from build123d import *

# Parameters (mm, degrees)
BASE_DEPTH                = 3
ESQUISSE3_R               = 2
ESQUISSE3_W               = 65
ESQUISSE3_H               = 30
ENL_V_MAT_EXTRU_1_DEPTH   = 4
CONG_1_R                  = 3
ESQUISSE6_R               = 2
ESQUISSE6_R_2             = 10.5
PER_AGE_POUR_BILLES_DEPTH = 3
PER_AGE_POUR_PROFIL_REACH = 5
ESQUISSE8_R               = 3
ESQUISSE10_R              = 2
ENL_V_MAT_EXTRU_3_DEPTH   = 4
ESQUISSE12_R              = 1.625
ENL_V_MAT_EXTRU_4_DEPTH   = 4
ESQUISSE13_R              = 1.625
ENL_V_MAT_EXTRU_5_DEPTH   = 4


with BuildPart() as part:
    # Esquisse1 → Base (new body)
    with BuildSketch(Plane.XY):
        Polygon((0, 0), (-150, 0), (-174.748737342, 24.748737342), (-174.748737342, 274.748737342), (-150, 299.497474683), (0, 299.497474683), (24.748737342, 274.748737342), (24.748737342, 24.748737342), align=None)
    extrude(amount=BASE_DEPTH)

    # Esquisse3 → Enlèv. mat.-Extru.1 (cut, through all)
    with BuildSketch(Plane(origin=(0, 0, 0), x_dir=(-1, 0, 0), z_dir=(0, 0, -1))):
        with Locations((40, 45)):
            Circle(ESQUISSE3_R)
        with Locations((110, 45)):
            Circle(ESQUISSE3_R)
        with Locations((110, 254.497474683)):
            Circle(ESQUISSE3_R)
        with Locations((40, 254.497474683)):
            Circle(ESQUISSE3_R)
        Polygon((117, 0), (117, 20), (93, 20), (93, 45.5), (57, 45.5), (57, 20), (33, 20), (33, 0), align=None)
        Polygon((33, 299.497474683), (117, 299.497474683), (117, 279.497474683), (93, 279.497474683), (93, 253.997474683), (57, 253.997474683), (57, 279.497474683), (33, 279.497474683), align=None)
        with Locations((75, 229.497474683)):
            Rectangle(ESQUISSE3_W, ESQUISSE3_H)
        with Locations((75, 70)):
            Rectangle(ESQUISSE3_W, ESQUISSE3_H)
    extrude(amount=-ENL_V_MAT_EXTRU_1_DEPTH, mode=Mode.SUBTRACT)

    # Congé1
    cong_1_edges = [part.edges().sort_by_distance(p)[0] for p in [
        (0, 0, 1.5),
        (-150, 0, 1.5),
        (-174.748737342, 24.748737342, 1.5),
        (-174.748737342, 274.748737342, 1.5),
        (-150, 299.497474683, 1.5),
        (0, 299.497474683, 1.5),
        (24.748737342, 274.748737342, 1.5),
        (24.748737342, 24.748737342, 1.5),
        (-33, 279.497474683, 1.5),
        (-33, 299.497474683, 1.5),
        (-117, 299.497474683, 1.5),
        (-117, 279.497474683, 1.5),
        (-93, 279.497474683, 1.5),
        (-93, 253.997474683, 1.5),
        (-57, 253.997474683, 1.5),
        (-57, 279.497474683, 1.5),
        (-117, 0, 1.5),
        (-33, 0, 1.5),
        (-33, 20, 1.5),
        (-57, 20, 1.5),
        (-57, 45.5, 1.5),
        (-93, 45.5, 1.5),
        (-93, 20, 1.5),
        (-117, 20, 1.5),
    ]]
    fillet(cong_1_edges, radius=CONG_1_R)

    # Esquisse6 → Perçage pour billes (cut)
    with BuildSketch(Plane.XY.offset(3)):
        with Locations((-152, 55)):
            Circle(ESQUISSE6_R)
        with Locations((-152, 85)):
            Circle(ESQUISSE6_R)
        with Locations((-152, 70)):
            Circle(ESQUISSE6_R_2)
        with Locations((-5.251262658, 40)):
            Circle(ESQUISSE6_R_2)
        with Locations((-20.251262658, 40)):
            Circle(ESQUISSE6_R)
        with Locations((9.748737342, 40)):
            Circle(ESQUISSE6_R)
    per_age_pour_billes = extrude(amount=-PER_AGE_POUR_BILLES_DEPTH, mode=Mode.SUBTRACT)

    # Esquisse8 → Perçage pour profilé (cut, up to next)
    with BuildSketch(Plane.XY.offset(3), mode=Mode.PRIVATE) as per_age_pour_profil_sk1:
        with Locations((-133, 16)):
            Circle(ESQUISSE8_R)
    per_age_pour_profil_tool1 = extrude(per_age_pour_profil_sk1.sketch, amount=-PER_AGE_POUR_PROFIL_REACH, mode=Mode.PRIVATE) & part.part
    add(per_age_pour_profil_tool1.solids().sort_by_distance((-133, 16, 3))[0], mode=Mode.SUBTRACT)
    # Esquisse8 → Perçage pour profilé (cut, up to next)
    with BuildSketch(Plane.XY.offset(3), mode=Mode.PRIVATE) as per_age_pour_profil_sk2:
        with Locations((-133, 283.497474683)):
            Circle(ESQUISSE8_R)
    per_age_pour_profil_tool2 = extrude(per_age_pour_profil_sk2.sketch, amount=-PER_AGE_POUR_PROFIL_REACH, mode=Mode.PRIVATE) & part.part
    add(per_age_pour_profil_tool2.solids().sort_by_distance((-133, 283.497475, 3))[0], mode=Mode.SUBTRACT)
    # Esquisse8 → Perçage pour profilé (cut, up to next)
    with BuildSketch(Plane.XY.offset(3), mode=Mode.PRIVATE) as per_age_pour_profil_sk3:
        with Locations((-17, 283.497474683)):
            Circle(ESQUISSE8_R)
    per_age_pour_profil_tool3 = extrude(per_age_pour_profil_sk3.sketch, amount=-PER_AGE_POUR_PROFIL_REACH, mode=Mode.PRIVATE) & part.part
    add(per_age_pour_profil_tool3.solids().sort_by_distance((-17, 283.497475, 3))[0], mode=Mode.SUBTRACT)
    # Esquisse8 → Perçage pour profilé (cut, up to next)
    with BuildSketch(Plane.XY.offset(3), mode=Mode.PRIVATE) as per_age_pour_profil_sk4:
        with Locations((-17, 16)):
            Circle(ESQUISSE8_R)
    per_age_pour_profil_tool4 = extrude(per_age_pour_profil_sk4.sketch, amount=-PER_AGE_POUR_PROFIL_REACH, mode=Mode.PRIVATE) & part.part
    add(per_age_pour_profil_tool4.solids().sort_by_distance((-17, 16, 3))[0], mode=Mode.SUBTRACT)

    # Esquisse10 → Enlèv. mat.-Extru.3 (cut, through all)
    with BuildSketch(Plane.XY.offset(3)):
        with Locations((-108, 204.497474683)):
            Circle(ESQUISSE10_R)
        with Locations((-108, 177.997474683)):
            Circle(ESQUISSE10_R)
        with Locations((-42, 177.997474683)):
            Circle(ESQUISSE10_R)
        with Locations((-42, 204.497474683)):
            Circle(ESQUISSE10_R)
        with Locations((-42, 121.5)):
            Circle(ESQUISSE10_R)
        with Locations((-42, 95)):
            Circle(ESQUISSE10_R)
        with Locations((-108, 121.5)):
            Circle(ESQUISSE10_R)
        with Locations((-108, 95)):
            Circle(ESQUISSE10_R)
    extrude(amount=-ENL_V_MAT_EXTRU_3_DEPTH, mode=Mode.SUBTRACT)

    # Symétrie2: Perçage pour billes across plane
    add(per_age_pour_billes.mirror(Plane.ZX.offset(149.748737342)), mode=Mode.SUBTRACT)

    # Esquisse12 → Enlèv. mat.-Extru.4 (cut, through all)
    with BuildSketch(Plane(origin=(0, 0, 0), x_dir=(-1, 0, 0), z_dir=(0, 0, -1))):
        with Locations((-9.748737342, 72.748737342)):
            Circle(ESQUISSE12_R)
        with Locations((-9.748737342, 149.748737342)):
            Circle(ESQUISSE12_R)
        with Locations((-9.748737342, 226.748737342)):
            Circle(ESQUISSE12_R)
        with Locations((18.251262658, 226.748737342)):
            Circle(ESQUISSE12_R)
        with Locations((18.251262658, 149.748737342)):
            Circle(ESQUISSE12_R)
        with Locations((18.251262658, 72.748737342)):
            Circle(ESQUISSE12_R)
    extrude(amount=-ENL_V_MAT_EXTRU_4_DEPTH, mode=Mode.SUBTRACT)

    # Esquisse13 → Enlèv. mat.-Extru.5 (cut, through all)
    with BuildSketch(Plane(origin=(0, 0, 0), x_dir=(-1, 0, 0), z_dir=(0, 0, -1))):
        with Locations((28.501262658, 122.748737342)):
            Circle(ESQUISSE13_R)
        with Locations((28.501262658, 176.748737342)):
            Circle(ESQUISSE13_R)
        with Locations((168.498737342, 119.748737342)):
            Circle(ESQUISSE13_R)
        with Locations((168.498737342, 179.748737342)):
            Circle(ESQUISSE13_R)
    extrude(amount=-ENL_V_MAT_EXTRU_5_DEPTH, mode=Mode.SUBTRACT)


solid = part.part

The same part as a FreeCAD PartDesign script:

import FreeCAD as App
import Part
import Sketcher
from FreeCAD import Vector
Q = App.Units.Quantity


def edges_at(feature, points):
    """Names of the edges that pass closest to the given points."""
    edges = feature.Shape.Edges
    near = lambda p: min(range(len(edges)), key=lambda i: edges[i].distToShape(Part.Vertex(*p))[0])
    return sorted({f"Edge{near(p) + 1}" for p in points})

doc = App.newDocument("Part")
body = doc.addObject("PartDesign::Body", "Body")

# Sketch on XY plane
sketch1 = doc.addObject("Sketcher::SketchObject", "Sketch")
body.addObject(sketch1)
sketch1.AttachmentSupport = (doc.XY_Plane, [""])
sketch1.MapMode = "FlatFace"
sketch1.addGeometry(Part.LineSegment(Vector(-150, 0, 0), Vector(0, 0, 0)), False)
sketch1.addGeometry(Part.LineSegment(Vector(0, 0, 0), Vector(24.748737, 24.748737, 0)), False)
sketch1.addGeometry(Part.LineSegment(Vector(24.748737, 24.748737, 0), Vector(24.748737, 274.748737, 0)), False)
sketch1.addGeometry(Part.LineSegment(Vector(24.748737, 274.748737, 0), Vector(0, 299.497475, 0)), False)
sketch1.addGeometry(Part.LineSegment(Vector(0, 299.497475, 0), Vector(-150, 299.497475, 0)), False)
sketch1.addGeometry(Part.LineSegment(Vector(-150, 299.497475, 0), Vector(-174.748737, 274.748737, 0)), False)
sketch1.addGeometry(Part.LineSegment(Vector(-174.748737, 274.748737, 0), Vector(-174.748737, 24.748737, 0)), False)
sketch1.addGeometry(Part.LineSegment(Vector(-174.748737, 24.748737, 0), Vector(-150, 0, 0)), False)
sketch1.addConstraint(Sketcher.Constraint("Coincident", 0, 2, 1, 1))
sketch1.addConstraint(Sketcher.Constraint("Coincident", 1, 2, 2, 1))
sketch1.addConstraint(Sketcher.Constraint("Coincident", 2, 2, 3, 1))
sketch1.addConstraint(Sketcher.Constraint("Coincident", 3, 2, 4, 1))
sketch1.addConstraint(Sketcher.Constraint("Coincident", 4, 2, 5, 1))
sketch1.addConstraint(Sketcher.Constraint("Coincident", 5, 2, 6, 1))
sketch1.addConstraint(Sketcher.Constraint("Coincident", 6, 2, 7, 1))
sketch1.addConstraint(Sketcher.Constraint("Coincident", 7, 2, 0, 1))
sketch1.addConstraint(Sketcher.Constraint("Horizontal", 0))
sketch1.addConstraint(Sketcher.Constraint("Vertical", 2))
sketch1.addConstraint(Sketcher.Constraint("Horizontal", 4))
sketch1.addConstraint(Sketcher.Constraint("Vertical", 6))
sketch1.addConstraint(Sketcher.Constraint("Coincident", 0, 2, -1, 1))
sketch1.addConstraint(Sketcher.Constraint("PointOnObject", 3, 2, -2))
sketch1.addConstraint(Sketcher.Constraint("Perpendicular", 1, 3))
sketch1.addConstraint(Sketcher.Constraint("Perpendicular", 3, 5))
sketch1.addConstraint(Sketcher.Constraint("Perpendicular", 5, 7))
sketch1.addConstraint(Sketcher.Constraint("Horizontal", 2, 2, 5, 2))
sketch1.addConstraint(Sketcher.Constraint("Horizontal", 1, 2, 6, 2))
sketch1.addConstraint(Sketcher.Constraint("Vertical", 4, 2, 7, 2))
sketch1.addConstraint(Sketcher.Constraint("DistanceX", 0, 1, 0, 2, Q("150 mm")))
sketch1.addConstraint(Sketcher.Constraint("DistanceY", 2, 1, 2, 2, Q("250 mm")))
sketch1.addConstraint(Sketcher.Constraint("Distance", 1, Q("35 mm")))
pad1 = doc.addObject("PartDesign::Pad", "Pad")
body.addObject(pad1)
pad1.Profile = sketch1
pad1.Length = 3

# Sketch on XY plane
sketch2 = doc.addObject("Sketcher::SketchObject", "Sketch001")
body.addObject(sketch2)
sketch2.AttachmentSupport = (doc.XY_Plane, [""])
sketch2.MapMode = "FlatFace"
sketch2.addGeometry(Part.Circle(Vector(-40, 45, 0), Vector(0, 0, 1), 2), False)
sketch2.addGeometry(Part.Circle(Vector(-110, 45, 0), Vector(0, 0, 1), 2), False)
sketch2.addGeometry(Part.Circle(Vector(-110, 254.497475, 0), Vector(0, 0, 1), 2), False)
sketch2.addGeometry(Part.Circle(Vector(-40, 254.497475, 0), Vector(0, 0, 1), 2), False)
sketch2.addGeometry(Part.LineSegment(Vector(-117, 0, 0), Vector(-117, 20, 0)), False)
sketch2.addGeometry(Part.LineSegment(Vector(-117, 20, 0), Vector(-93, 20, 0)), False)
sketch2.addGeometry(Part.LineSegment(Vector(-93, 20, 0), Vector(-93, 45.5, 0)), False)
sketch2.addGeometry(Part.LineSegment(Vector(-93, 45.5, 0), Vector(-57, 45.5, 0)), False)
sketch2.addGeometry(Part.LineSegment(Vector(-57, 45.5, 0), Vector(-57, 20, 0)), False)
sketch2.addGeometry(Part.LineSegment(Vector(-57, 20, 0), Vector(-33, 20, 0)), False)
sketch2.addGeometry(Part.LineSegment(Vector(-33, 20, 0), Vector(-33, 0, 0)), False)
sketch2.addGeometry(Part.LineSegment(Vector(-33, 0, 0), Vector(-117, 0, 0)), False)
sketch2.addGeometry(Part.LineSegment(Vector(-117, 299.497475, 0), Vector(-33, 299.497475, 0)), False)
sketch2.addGeometry(Part.LineSegment(Vector(-33, 299.497475, 0), Vector(-33, 279.497475, 0)), False)
sketch2.addGeometry(Part.LineSegment(Vector(-33, 279.497475, 0), Vector(-57, 279.497475, 0)), False)
sketch2.addGeometry(Part.LineSegment(Vector(-57, 279.497475, 0), Vector(-57, 253.997475, 0)), False)
sketch2.addGeometry(Part.LineSegment(Vector(-57, 253.997475, 0), Vector(-93, 253.997475, 0)), False)
sketch2.addGeometry(Part.LineSegment(Vector(-93, 253.997475, 0), Vector(-93, 279.497475, 0)), False)
sketch2.addGeometry(Part.LineSegment(Vector(-93, 279.497475, 0), Vector(-117, 279.497475, 0)), False)
sketch2.addGeometry(Part.LineSegment(Vector(-117, 279.497475, 0), Vector(-117, 299.497475, 0)), False)
sketch2.addGeometry(Part.LineSegment(Vector(-42.5, 244.497475, 0), Vector(-42.5, 214.497475, 0)), False)
sketch2.addGeometry(Part.LineSegment(Vector(-42.5, 214.497475, 0), Vector(-107.5, 214.497475, 0)), False)
sketch2.addGeometry(Part.LineSegment(Vector(-107.5, 214.497475, 0), Vector(-107.5, 244.497475, 0)), False)
sketch2.addGeometry(Part.LineSegment(Vector(-107.5, 244.497475, 0), Vector(-42.5, 244.497475, 0)), False)
sketch2.addGeometry(Part.LineSegment(Vector(-42.5, 85, 0), Vector(-42.5, 55, 0)), False)
sketch2.addGeometry(Part.LineSegment(Vector(-42.5, 55, 0), Vector(-107.5, 55, 0)), False)
sketch2.addGeometry(Part.LineSegment(Vector(-107.5, 55, 0), Vector(-107.5, 85, 0)), False)
sketch2.addGeometry(Part.LineSegment(Vector(-107.5, 85, 0), Vector(-42.5, 85, 0)), False)
sketch2.addConstraint(Sketcher.Constraint("Coincident", 4, 2, 5, 1))
sketch2.addConstraint(Sketcher.Constraint("Coincident", 5, 2, 6, 1))
sketch2.addConstraint(Sketcher.Constraint("Coincident", 6, 2, 7, 1))
sketch2.addConstraint(Sketcher.Constraint("Coincident", 7, 2, 8, 1))
sketch2.addConstraint(Sketcher.Constraint("Coincident", 8, 2, 9, 1))
sketch2.addConstraint(Sketcher.Constraint("Coincident", 9, 2, 10, 1))
sketch2.addConstraint(Sketcher.Constraint("Coincident", 10, 2, 11, 1))
sketch2.addConstraint(Sketcher.Constraint("Coincident", 11, 2, 4, 1))
sketch2.addConstraint(Sketcher.Constraint("Coincident", 12, 2, 13, 1))
sketch2.addConstraint(Sketcher.Constraint("Coincident", 13, 2, 14, 1))
sketch2.addConstraint(Sketcher.Constraint("Coincident", 14, 2, 15, 1))
sketch2.addConstraint(Sketcher.Constraint("Coincident", 15, 2, 16, 1))
sketch2.addConstraint(Sketcher.Constraint("Coincident", 16, 2, 17, 1))
sketch2.addConstraint(Sketcher.Constraint("Coincident", 17, 2, 18, 1))
sketch2.addConstraint(Sketcher.Constraint("Coincident", 18, 2, 19, 1))
sketch2.addConstraint(Sketcher.Constraint("Coincident", 19, 2, 12, 1))
sketch2.addConstraint(Sketcher.Constraint("Coincident", 20, 2, 21, 1))
sketch2.addConstraint(Sketcher.Constraint("Coincident", 21, 2, 22, 1))
sketch2.addConstraint(Sketcher.Constraint("Coincident", 22, 2, 23, 1))
sketch2.addConstraint(Sketcher.Constraint("Coincident", 23, 2, 20, 1))
sketch2.addConstraint(Sketcher.Constraint("Coincident", 24, 2, 25, 1))
sketch2.addConstraint(Sketcher.Constraint("Coincident", 25, 2, 26, 1))
sketch2.addConstraint(Sketcher.Constraint("Coincident", 26, 2, 27, 1))
sketch2.addConstraint(Sketcher.Constraint("Coincident", 27, 2, 24, 1))
sketch2.addConstraint(Sketcher.Constraint("Vertical", 4))
sketch2.addConstraint(Sketcher.Constraint("Horizontal", 5))
sketch2.addConstraint(Sketcher.Constraint("Vertical", 6))
sketch2.addConstraint(Sketcher.Constraint("Horizontal", 7))
sketch2.addConstraint(Sketcher.Constraint("Vertical", 8))
sketch2.addConstraint(Sketcher.Constraint("Horizontal", 9))
sketch2.addConstraint(Sketcher.Constraint("Vertical", 10))
sketch2.addConstraint(Sketcher.Constraint("Horizontal", 11))
sketch2.addConstraint(Sketcher.Constraint("Horizontal", 12))
sketch2.addConstraint(Sketcher.Constraint("Vertical", 13))
sketch2.addConstraint(Sketcher.Constraint("Horizontal", 14))
sketch2.addConstraint(Sketcher.Constraint("Vertical", 15))
sketch2.addConstraint(Sketcher.Constraint("Horizontal", 16))
sketch2.addConstraint(Sketcher.Constraint("Vertical", 17))
sketch2.addConstraint(Sketcher.Constraint("Horizontal", 18))
sketch2.addConstraint(Sketcher.Constraint("Vertical", 19))
sketch2.addConstraint(Sketcher.Constraint("Vertical", 20))
sketch2.addConstraint(Sketcher.Constraint("Horizontal", 21))
sketch2.addConstraint(Sketcher.Constraint("Vertical", 22))
sketch2.addConstraint(Sketcher.Constraint("Horizontal", 23))
sketch2.addConstraint(Sketcher.Constraint("Vertical", 24))
sketch2.addConstraint(Sketcher.Constraint("Horizontal", 25))
sketch2.addConstraint(Sketcher.Constraint("Vertical", 26))
sketch2.addConstraint(Sketcher.Constraint("Horizontal", 27))
sketch2.addConstraint(Sketcher.Constraint("Equal", 0, 1))
sketch2.addConstraint(Sketcher.Constraint("Equal", 1, 2))
sketch2.addConstraint(Sketcher.Constraint("Equal", 2, 3))
sketch2.addConstraint(Sketcher.Constraint("PointOnObject", 10, 2, -1))
sketch2.addConstraint(Sketcher.Constraint("Horizontal", 0, 3, 1, 3))
sketch2.addConstraint(Sketcher.Constraint("Horizontal", 2, 3, 3, 3))
sketch2.addConstraint(Sketcher.Constraint("Horizontal", 5, 2, 8, 2))
sketch2.addConstraint(Sketcher.Constraint("Horizontal", 14, 2, 17, 2))
sketch2.addConstraint(Sketcher.Constraint("Vertical", 1, 3, 2, 3))
sketch2.addConstraint(Sketcher.Constraint("Vertical", 0, 3, 3, 3))
sketch2.addConstraint(Sketcher.Constraint("Vertical", 10, 2, 12, 2))
sketch2.addConstraint(Sketcher.Constraint("Vertical", 8, 2, 14, 2))
sketch2.addConstraint(Sketcher.Constraint("Vertical", 6, 2, 16, 2))
sketch2.addConstraint(Sketcher.Constraint("Vertical", 11, 2, 18, 2))
sketch2.addConstraint(Sketcher.Constraint("Vertical", 23, 2, 24, 2))
sketch2.addConstraint(Sketcher.Constraint("Vertical", 22, 2, 25, 2))
sketch2.addConstraint(Sketcher.Constraint("Equal", 5, 9))
sketch2.addConstraint(Sketcher.Constraint("Equal", 10, 13))
sketch2.addConstraint(Sketcher.Constraint("Equal", 8, 15))
sketch2.addConstraint(Sketcher.Constraint("Equal", 22, 24))
sketch2.addConstraint(Sketcher.Constraint("Diameter", 0, Q("4 mm")))
sketch2.addConstraint(Sketcher.Constraint("DistanceX", 5, 1, 5, 2, Q("24 mm")))
sketch2.addConstraint(Sketcher.Constraint("DistanceX", 7, 1, 7, 2, Q("36 mm")))
sketch2.addConstraint(Sketcher.Constraint("DistanceX", 21, 2, 21, 1, Q("65 mm")))
sketch2.addConstraint(Sketcher.Constraint("DistanceY", 4, 1, 4, 2, Q("20 mm")))
sketch2.addConstraint(Sketcher.Constraint("DistanceY", 20, 2, 20, 1, Q("30 mm")))
sketch2.addConstraint(Sketcher.Constraint("DistanceY", 6, 1, 6, 2, Q("25.5 mm")))
sketch2.addConstraint(Sketcher.Constraint("DistanceX", 0, 3, -1, 1, Q("40 mm")))
sketch2.addConstraint(Sketcher.Constraint("DistanceY", -1, 1, 0, 3, Q("45 mm")))
sketch2.addConstraint(Sketcher.Constraint("DistanceX", 1, 3, -1, 1, Q("110 mm")))
sketch2.addConstraint(Sketcher.Constraint("DistanceX", 4, 2, -1, 1, Q("117 mm")))
sketch2.addConstraint(Sketcher.Constraint("DistanceY", -1, 1, 24, 2, Q("55 mm")))
sketch2.addConstraint(Sketcher.Constraint("DistanceY", 3, 3, 12, 2, Q("45 mm")))
sketch2.addConstraint(Sketcher.Constraint("DistanceY", 20, 2, 3, 3, Q("40 mm")))
sketch2.addConstraint(Sketcher.Constraint("DistanceX", 20, 2, -1, 1, Q("42.5 mm")))
sketch2.addConstraint(Sketcher.Constraint("DistanceY", -1, 1, 2, 3, Q("254.497475 mm")))
pocket1 = doc.addObject("PartDesign::Pocket", "Pocket")
body.addObject(pocket1)
pocket1.Profile = sketch2
pocket1.Type = "ThroughAll"
pocket1.Reversed = True
doc.recompute()

fillet = doc.addObject("PartDesign::Fillet", "Fillet")
body.addObject(fillet)
fillet.Base = (pocket1, edges_at(pocket1, [
    (0, 0, 1.5),
    (-150, 0, 1.5),
    (-174.749, 24.749, 1.5),
    (-174.749, 274.749, 1.5),
    (-150, 299.497, 1.5),
    (0, 299.497, 1.5),
    (24.749, 274.749, 1.5),
    (24.749, 24.749, 1.5),
    (-33, 279.497, 1.5),
    (-33, 299.497, 1.5),
    (-117, 299.497, 1.5),
    (-117, 279.497, 1.5),
    (-93, 279.497, 1.5),
    (-93, 253.997, 1.5),
    (-57, 253.997, 1.5),
    (-57, 279.497, 1.5),
    (-117, 0, 1.5),
    (-33, 0, 1.5),
    (-33, 20, 1.5),
    (-57, 20, 1.5),
    (-57, 45.5, 1.5),
    (-93, 45.5, 1.5),
    (-93, 20, 1.5),
    (-117, 20, 1.5),
]))
fillet.Radius = 3

# Sketch on XY plane
sketch3 = doc.addObject("Sketcher::SketchObject", "Sketch002")
body.addObject(sketch3)
sketch3.AttachmentSupport = (doc.XY_Plane, [""])
sketch3.MapMode = "FlatFace"
sketch3.AttachmentOffset = App.Placement(Vector(0, 0, 3), App.Rotation())
sketch3.addGeometry(Part.Circle(Vector(-152, 55, 0), Vector(0, 0, 1), 2), False)
sketch3.addGeometry(Part.Circle(Vector(-152, 85, 0), Vector(0, 0, 1), 2), False)
sketch3.addGeometry(Part.Circle(Vector(-152, 70, 0), Vector(0, 0, 1), 10.5), False)
sketch3.addGeometry(Part.Circle(Vector(-5.251263, 40, 0), Vector(0, 0, 1), 10.5), False)
sketch3.addGeometry(Part.Circle(Vector(-20.251263, 40, 0), Vector(0, 0, 1), 2), False)
sketch3.addGeometry(Part.Circle(Vector(9.748737, 40, 0), Vector(0, 0, 1), 2), False)
sketch3.addConstraint(Sketcher.Constraint("Equal", 0, 1))
sketch3.addConstraint(Sketcher.Constraint("Equal", 2, 3))
sketch3.addConstraint(Sketcher.Constraint("Equal", 1, 4))
sketch3.addConstraint(Sketcher.Constraint("Equal", 4, 5))
sketch3.addConstraint(Sketcher.Constraint("Horizontal", 3, 3, 4, 3))
sketch3.addConstraint(Sketcher.Constraint("Horizontal", 4, 3, 5, 3))
sketch3.addConstraint(Sketcher.Constraint("Vertical", 0, 3, 1, 3))
sketch3.addConstraint(Sketcher.Constraint("Vertical", 1, 3, 2, 3))
sketch3.addConstraint(Sketcher.Constraint("Diameter", 0, Q("4 mm")))
sketch3.addConstraint(Sketcher.Constraint("Diameter", 2, Q("21 mm")))
sketch3.addConstraint(Sketcher.Constraint("DistanceX", 0, 3, -1, 1, Q("152 mm")))
sketch3.addConstraint(Sketcher.Constraint("DistanceY", -1, 1, 0, 3, Q("55 mm")))
sketch3.addConstraint(Sketcher.Constraint("DistanceY", -1, 1, 1, 3, Q("85 mm")))
sketch3.addConstraint(Sketcher.Constraint("DistanceY", -1, 1, 2, 3, Q("70 mm")))
sketch3.addConstraint(Sketcher.Constraint("DistanceY", -1, 1, 3, 3, Q("40 mm")))
sketch3.addConstraint(Sketcher.Constraint("DistanceX", 4, 3, 3, 3, Q("15 mm")))
sketch3.addConstraint(Sketcher.Constraint("DistanceX", 3, 3, 5, 3, Q("15 mm")))
sketch3.addConstraint(Sketcher.Constraint("DistanceX", 3, 3, -1, 1, Q("5.251263 mm")))
pocket2 = doc.addObject("PartDesign::Pocket", "Pocket001")
body.addObject(pocket2)
pocket2.Profile = sketch3
pocket2.Length = 3

# Sketch on XY plane
sketch4 = doc.addObject("Sketcher::SketchObject", "Sketch003")
body.addObject(sketch4)
sketch4.AttachmentSupport = (doc.XY_Plane, [""])
sketch4.MapMode = "FlatFace"
sketch4.AttachmentOffset = App.Placement(Vector(0, 0, 3), App.Rotation())
sketch4.addGeometry(Part.Circle(Vector(-133, 16, 0), Vector(0, 0, 1), 3), False)
sketch4.addConstraint(Sketcher.Constraint("Diameter", 0, Q("6 mm")))
sketch4.addConstraint(Sketcher.Constraint("DistanceX", 0, 3, -1, 1, Q("133 mm")))
sketch4.addConstraint(Sketcher.Constraint("DistanceY", -1, 1, 0, 3, Q("16 mm")))
pocket3 = doc.addObject("PartDesign::Pocket", "Pocket002")
body.addObject(pocket3)
pocket3.Profile = sketch4
pocket3.Type = "UpToFirst"

# Sketch on XY plane
sketch5 = doc.addObject("Sketcher::SketchObject", "Sketch004")
body.addObject(sketch5)
sketch5.AttachmentSupport = (doc.XY_Plane, [""])
sketch5.MapMode = "FlatFace"
sketch5.AttachmentOffset = App.Placement(Vector(0, 0, 3), App.Rotation())
sketch5.addGeometry(Part.Circle(Vector(-133, 283.497475, 0), Vector(0, 0, 1), 3), False)
sketch5.addConstraint(Sketcher.Constraint("Diameter", 0, Q("6 mm")))
sketch5.addConstraint(Sketcher.Constraint("DistanceX", 0, 3, -1, 1, Q("133 mm")))
sketch5.addConstraint(Sketcher.Constraint("DistanceY", -1, 1, 0, 3, Q("283.497475 mm")))
pocket4 = doc.addObject("PartDesign::Pocket", "Pocket003")
body.addObject(pocket4)
pocket4.Profile = sketch5
pocket4.Type = "UpToFirst"

# Sketch on XY plane
sketch6 = doc.addObject("Sketcher::SketchObject", "Sketch005")
body.addObject(sketch6)
sketch6.AttachmentSupport = (doc.XY_Plane, [""])
sketch6.MapMode = "FlatFace"
sketch6.AttachmentOffset = App.Placement(Vector(0, 0, 3), App.Rotation())
sketch6.addGeometry(Part.Circle(Vector(-17, 283.497475, 0), Vector(0, 0, 1), 3), False)
sketch6.addConstraint(Sketcher.Constraint("Diameter", 0, Q("6 mm")))
sketch6.addConstraint(Sketcher.Constraint("DistanceX", 0, 3, -1, 1, Q("17 mm")))
sketch6.addConstraint(Sketcher.Constraint("DistanceY", -1, 1, 0, 3, Q("283.497475 mm")))
pocket5 = doc.addObject("PartDesign::Pocket", "Pocket004")
body.addObject(pocket5)
pocket5.Profile = sketch6
pocket5.Type = "UpToFirst"

# Sketch on XY plane
sketch7 = doc.addObject("Sketcher::SketchObject", "Sketch006")
body.addObject(sketch7)
sketch7.AttachmentSupport = (doc.XY_Plane, [""])
sketch7.MapMode = "FlatFace"
sketch7.AttachmentOffset = App.Placement(Vector(0, 0, 3), App.Rotation())
sketch7.addGeometry(Part.Circle(Vector(-17, 16, 0), Vector(0, 0, 1), 3), False)
sketch7.addConstraint(Sketcher.Constraint("Diameter", 0, Q("6 mm")))
sketch7.addConstraint(Sketcher.Constraint("DistanceX", 0, 3, -1, 1, Q("17 mm")))
sketch7.addConstraint(Sketcher.Constraint("DistanceY", -1, 1, 0, 3, Q("16 mm")))
pocket6 = doc.addObject("PartDesign::Pocket", "Pocket005")
body.addObject(pocket6)
pocket6.Profile = sketch7
pocket6.Type = "UpToFirst"

# Sketch on XY plane
sketch8 = doc.addObject("Sketcher::SketchObject", "Sketch007")
body.addObject(sketch8)
sketch8.AttachmentSupport = (doc.XY_Plane, [""])
sketch8.MapMode = "FlatFace"
sketch8.AttachmentOffset = App.Placement(Vector(0, 0, 3), App.Rotation())
sketch8.addGeometry(Part.Circle(Vector(-108, 204.497475, 0), Vector(0, 0, 1), 2), False)
sketch8.addGeometry(Part.Circle(Vector(-108, 177.997475, 0), Vector(0, 0, 1), 2), False)
sketch8.addGeometry(Part.Circle(Vector(-42, 177.997475, 0), Vector(0, 0, 1), 2), False)
sketch8.addGeometry(Part.Circle(Vector(-42, 204.497475, 0), Vector(0, 0, 1), 2), False)
sketch8.addGeometry(Part.Circle(Vector(-42, 121.5, 0), Vector(0, 0, 1), 2), False)
sketch8.addGeometry(Part.Circle(Vector(-42, 95, 0), Vector(0, 0, 1), 2), False)
sketch8.addGeometry(Part.Circle(Vector(-108, 121.5, 0), Vector(0, 0, 1), 2), False)
sketch8.addGeometry(Part.Circle(Vector(-108, 95, 0), Vector(0, 0, 1), 2), False)
sketch8.addConstraint(Sketcher.Constraint("Equal", 0, 1))
sketch8.addConstraint(Sketcher.Constraint("Equal", 1, 2))
sketch8.addConstraint(Sketcher.Constraint("Equal", 2, 3))
sketch8.addConstraint(Sketcher.Constraint("Equal", 3, 4))
sketch8.addConstraint(Sketcher.Constraint("Equal", 4, 5))
sketch8.addConstraint(Sketcher.Constraint("Equal", 5, 6))
sketch8.addConstraint(Sketcher.Constraint("Equal", 6, 7))
sketch8.addConstraint(Sketcher.Constraint("Horizontal", 1, 3, 2, 3))
sketch8.addConstraint(Sketcher.Constraint("Horizontal", 0, 3, 3, 3))
sketch8.addConstraint(Sketcher.Constraint("Horizontal", 4, 3, 6, 3))
sketch8.addConstraint(Sketcher.Constraint("Horizontal", 5, 3, 7, 3))
sketch8.addConstraint(Sketcher.Constraint("Vertical", 0, 3, 1, 3))
sketch8.addConstraint(Sketcher.Constraint("Vertical", 2, 3, 3, 3))
sketch8.addConstraint(Sketcher.Constraint("Vertical", 3, 3, 4, 3))
sketch8.addConstraint(Sketcher.Constraint("Vertical", 4, 3, 5, 3))
sketch8.addConstraint(Sketcher.Constraint("Vertical", 1, 3, 6, 3))
sketch8.addConstraint(Sketcher.Constraint("Vertical", 6, 3, 7, 3))
sketch8.addConstraint(Sketcher.Constraint("Diameter", 0, Q("4 mm")))
sketch8.addConstraint(Sketcher.Constraint("DistanceX", 0, 3, -1, 1, Q("108 mm")))
sketch8.addConstraint(Sketcher.Constraint("DistanceX", 2, 3, -1, 1, Q("42 mm")))
sketch8.addConstraint(Sketcher.Constraint("DistanceY", -1, 1, 5, 3, Q("95 mm")))
sketch8.addConstraint(Sketcher.Constraint("DistanceY", -1, 1, 4, 3, Q("121.5 mm")))
sketch8.addConstraint(Sketcher.Constraint("DistanceY", 1, 3, 0, 3, Q("26.5 mm")))
sketch8.addConstraint(Sketcher.Constraint("DistanceY", -1, 1, 0, 3, Q("204.497475 mm")))
pocket7 = doc.addObject("PartDesign::Pocket", "Pocket006")
body.addObject(pocket7)
pocket7.Profile = sketch8
pocket7.Type = "ThroughAll"
doc.recompute()

datumplane = doc.addObject("PartDesign::Plane", "DatumPlane")
body.addObject(datumplane)
datumplane.AttachmentSupport = (doc.XZ_Plane, [""])
datumplane.MapMode = "FlatFace"
datumplane.AttachmentOffset = App.Placement(Vector(0, 0, -149.748737), App.Rotation())
mirrored = doc.addObject("PartDesign::Mirrored", "Mirrored")
body.addObject(mirrored)
mirrored.Originals = [pocket2]
mirrored.MirrorPlane = (datumplane, [""])
body.Tip = mirrored

# Sketch on XY plane
sketch9 = doc.addObject("Sketcher::SketchObject", "Sketch008")
body.addObject(sketch9)
sketch9.AttachmentSupport = (doc.XY_Plane, [""])
sketch9.MapMode = "FlatFace"
sketch9.addGeometry(Part.Circle(Vector(9.748737, 72.748737, 0), Vector(0, 0, 1), 1.625), False)
sketch9.addGeometry(Part.Circle(Vector(9.748737, 149.748737, 0), Vector(0, 0, 1), 1.625), False)
sketch9.addGeometry(Part.Circle(Vector(9.748737, 226.748737, 0), Vector(0, 0, 1), 1.625), False)
sketch9.addGeometry(Part.Circle(Vector(-18.251263, 226.748737, 0), Vector(0, 0, 1), 1.625), False)
sketch9.addGeometry(Part.Circle(Vector(-18.251263, 149.748737, 0), Vector(0, 0, 1), 1.625), False)
sketch9.addGeometry(Part.Circle(Vector(-18.251263, 72.748737, 0), Vector(0, 0, 1), 1.625), False)
sketch9.addConstraint(Sketcher.Constraint("Equal", 0, 1))
sketch9.addConstraint(Sketcher.Constraint("Equal", 1, 2))
sketch9.addConstraint(Sketcher.Constraint("Equal", 2, 3))
sketch9.addConstraint(Sketcher.Constraint("Equal", 3, 4))
sketch9.addConstraint(Sketcher.Constraint("Equal", 4, 5))
sketch9.addConstraint(Sketcher.Constraint("Horizontal", 2, 3, 3, 3))
sketch9.addConstraint(Sketcher.Constraint("Horizontal", 1, 3, 4, 3))
sketch9.addConstraint(Sketcher.Constraint("Horizontal", 0, 3, 5, 3))
sketch9.addConstraint(Sketcher.Constraint("Vertical", 0, 3, 1, 3))
sketch9.addConstraint(Sketcher.Constraint("Vertical", 1, 3, 2, 3))
sketch9.addConstraint(Sketcher.Constraint("Vertical", 3, 3, 4, 3))
sketch9.addConstraint(Sketcher.Constraint("Vertical", 4, 3, 5, 3))
sketch9.addConstraint(Sketcher.Constraint("Diameter", 0, Q("3.25 mm")))
sketch9.addConstraint(Sketcher.Constraint("DistanceY", 0, 3, 1, 3, Q("77 mm")))
sketch9.addConstraint(Sketcher.Constraint("DistanceY", 1, 3, 2, 3, Q("77 mm")))
sketch9.addConstraint(Sketcher.Constraint("DistanceX", 3, 3, 2, 3, Q("28 mm")))
sketch9.addConstraint(Sketcher.Constraint("DistanceX", -1, 1, 0, 3, Q("9.748737 mm")))
sketch9.addConstraint(Sketcher.Constraint("DistanceY", -1, 1, 0, 3, Q("72.748737 mm")))
pocket8 = doc.addObject("PartDesign::Pocket", "Pocket007")
body.addObject(pocket8)
pocket8.Profile = sketch9
pocket8.Type = "ThroughAll"
pocket8.Reversed = True

# Sketch on XY plane
sketch10 = doc.addObject("Sketcher::SketchObject", "Sketch009")
body.addObject(sketch10)
sketch10.AttachmentSupport = (doc.XY_Plane, [""])
sketch10.MapMode = "FlatFace"
sketch10.addGeometry(Part.Circle(Vector(-28.501263, 122.748737, 0), Vector(0, 0, 1), 1.625), False)
sketch10.addGeometry(Part.Circle(Vector(-28.501263, 176.748737, 0), Vector(0, 0, 1), 1.625), False)
sketch10.addGeometry(Part.Circle(Vector(-168.498737, 119.748737, 0), Vector(0, 0, 1), 1.625), False)
sketch10.addGeometry(Part.Circle(Vector(-168.498737, 179.748737, 0), Vector(0, 0, 1), 1.625), False)
sketch10.addConstraint(Sketcher.Constraint("Equal", 0, 1))
sketch10.addConstraint(Sketcher.Constraint("Equal", 1, 2))
sketch10.addConstraint(Sketcher.Constraint("Equal", 2, 3))
sketch10.addConstraint(Sketcher.Constraint("Vertical", 0, 3, 1, 3))
sketch10.addConstraint(Sketcher.Constraint("Vertical", 2, 3, 3, 3))
sketch10.addConstraint(Sketcher.Constraint("Diameter", 0, Q("3.25 mm")))
sketch10.addConstraint(Sketcher.Constraint("DistanceY", 0, 3, 1, 3, Q("54 mm")))
sketch10.addConstraint(Sketcher.Constraint("DistanceY", 2, 3, 0, 3, Q("3 mm")))
sketch10.addConstraint(Sketcher.Constraint("DistanceY", 2, 3, 3, 3, Q("60 mm")))
sketch10.addConstraint(Sketcher.Constraint("DistanceX", 0, 3, -1, 1, Q("28.501263 mm")))
sketch10.addConstraint(Sketcher.Constraint("DistanceY", -1, 1, 0, 3, Q("122.748737 mm")))
sketch10.addConstraint(Sketcher.Constraint("DistanceX", 2, 3, -1, 1, Q("168.498737 mm")))
pocket9 = doc.addObject("PartDesign::Pocket", "Pocket008")
body.addObject(pocket9)
pocket9.Profile = sketch10
pocket9.Type = "ThroughAll"
pocket9.Reversed = True

doc.recompute()
